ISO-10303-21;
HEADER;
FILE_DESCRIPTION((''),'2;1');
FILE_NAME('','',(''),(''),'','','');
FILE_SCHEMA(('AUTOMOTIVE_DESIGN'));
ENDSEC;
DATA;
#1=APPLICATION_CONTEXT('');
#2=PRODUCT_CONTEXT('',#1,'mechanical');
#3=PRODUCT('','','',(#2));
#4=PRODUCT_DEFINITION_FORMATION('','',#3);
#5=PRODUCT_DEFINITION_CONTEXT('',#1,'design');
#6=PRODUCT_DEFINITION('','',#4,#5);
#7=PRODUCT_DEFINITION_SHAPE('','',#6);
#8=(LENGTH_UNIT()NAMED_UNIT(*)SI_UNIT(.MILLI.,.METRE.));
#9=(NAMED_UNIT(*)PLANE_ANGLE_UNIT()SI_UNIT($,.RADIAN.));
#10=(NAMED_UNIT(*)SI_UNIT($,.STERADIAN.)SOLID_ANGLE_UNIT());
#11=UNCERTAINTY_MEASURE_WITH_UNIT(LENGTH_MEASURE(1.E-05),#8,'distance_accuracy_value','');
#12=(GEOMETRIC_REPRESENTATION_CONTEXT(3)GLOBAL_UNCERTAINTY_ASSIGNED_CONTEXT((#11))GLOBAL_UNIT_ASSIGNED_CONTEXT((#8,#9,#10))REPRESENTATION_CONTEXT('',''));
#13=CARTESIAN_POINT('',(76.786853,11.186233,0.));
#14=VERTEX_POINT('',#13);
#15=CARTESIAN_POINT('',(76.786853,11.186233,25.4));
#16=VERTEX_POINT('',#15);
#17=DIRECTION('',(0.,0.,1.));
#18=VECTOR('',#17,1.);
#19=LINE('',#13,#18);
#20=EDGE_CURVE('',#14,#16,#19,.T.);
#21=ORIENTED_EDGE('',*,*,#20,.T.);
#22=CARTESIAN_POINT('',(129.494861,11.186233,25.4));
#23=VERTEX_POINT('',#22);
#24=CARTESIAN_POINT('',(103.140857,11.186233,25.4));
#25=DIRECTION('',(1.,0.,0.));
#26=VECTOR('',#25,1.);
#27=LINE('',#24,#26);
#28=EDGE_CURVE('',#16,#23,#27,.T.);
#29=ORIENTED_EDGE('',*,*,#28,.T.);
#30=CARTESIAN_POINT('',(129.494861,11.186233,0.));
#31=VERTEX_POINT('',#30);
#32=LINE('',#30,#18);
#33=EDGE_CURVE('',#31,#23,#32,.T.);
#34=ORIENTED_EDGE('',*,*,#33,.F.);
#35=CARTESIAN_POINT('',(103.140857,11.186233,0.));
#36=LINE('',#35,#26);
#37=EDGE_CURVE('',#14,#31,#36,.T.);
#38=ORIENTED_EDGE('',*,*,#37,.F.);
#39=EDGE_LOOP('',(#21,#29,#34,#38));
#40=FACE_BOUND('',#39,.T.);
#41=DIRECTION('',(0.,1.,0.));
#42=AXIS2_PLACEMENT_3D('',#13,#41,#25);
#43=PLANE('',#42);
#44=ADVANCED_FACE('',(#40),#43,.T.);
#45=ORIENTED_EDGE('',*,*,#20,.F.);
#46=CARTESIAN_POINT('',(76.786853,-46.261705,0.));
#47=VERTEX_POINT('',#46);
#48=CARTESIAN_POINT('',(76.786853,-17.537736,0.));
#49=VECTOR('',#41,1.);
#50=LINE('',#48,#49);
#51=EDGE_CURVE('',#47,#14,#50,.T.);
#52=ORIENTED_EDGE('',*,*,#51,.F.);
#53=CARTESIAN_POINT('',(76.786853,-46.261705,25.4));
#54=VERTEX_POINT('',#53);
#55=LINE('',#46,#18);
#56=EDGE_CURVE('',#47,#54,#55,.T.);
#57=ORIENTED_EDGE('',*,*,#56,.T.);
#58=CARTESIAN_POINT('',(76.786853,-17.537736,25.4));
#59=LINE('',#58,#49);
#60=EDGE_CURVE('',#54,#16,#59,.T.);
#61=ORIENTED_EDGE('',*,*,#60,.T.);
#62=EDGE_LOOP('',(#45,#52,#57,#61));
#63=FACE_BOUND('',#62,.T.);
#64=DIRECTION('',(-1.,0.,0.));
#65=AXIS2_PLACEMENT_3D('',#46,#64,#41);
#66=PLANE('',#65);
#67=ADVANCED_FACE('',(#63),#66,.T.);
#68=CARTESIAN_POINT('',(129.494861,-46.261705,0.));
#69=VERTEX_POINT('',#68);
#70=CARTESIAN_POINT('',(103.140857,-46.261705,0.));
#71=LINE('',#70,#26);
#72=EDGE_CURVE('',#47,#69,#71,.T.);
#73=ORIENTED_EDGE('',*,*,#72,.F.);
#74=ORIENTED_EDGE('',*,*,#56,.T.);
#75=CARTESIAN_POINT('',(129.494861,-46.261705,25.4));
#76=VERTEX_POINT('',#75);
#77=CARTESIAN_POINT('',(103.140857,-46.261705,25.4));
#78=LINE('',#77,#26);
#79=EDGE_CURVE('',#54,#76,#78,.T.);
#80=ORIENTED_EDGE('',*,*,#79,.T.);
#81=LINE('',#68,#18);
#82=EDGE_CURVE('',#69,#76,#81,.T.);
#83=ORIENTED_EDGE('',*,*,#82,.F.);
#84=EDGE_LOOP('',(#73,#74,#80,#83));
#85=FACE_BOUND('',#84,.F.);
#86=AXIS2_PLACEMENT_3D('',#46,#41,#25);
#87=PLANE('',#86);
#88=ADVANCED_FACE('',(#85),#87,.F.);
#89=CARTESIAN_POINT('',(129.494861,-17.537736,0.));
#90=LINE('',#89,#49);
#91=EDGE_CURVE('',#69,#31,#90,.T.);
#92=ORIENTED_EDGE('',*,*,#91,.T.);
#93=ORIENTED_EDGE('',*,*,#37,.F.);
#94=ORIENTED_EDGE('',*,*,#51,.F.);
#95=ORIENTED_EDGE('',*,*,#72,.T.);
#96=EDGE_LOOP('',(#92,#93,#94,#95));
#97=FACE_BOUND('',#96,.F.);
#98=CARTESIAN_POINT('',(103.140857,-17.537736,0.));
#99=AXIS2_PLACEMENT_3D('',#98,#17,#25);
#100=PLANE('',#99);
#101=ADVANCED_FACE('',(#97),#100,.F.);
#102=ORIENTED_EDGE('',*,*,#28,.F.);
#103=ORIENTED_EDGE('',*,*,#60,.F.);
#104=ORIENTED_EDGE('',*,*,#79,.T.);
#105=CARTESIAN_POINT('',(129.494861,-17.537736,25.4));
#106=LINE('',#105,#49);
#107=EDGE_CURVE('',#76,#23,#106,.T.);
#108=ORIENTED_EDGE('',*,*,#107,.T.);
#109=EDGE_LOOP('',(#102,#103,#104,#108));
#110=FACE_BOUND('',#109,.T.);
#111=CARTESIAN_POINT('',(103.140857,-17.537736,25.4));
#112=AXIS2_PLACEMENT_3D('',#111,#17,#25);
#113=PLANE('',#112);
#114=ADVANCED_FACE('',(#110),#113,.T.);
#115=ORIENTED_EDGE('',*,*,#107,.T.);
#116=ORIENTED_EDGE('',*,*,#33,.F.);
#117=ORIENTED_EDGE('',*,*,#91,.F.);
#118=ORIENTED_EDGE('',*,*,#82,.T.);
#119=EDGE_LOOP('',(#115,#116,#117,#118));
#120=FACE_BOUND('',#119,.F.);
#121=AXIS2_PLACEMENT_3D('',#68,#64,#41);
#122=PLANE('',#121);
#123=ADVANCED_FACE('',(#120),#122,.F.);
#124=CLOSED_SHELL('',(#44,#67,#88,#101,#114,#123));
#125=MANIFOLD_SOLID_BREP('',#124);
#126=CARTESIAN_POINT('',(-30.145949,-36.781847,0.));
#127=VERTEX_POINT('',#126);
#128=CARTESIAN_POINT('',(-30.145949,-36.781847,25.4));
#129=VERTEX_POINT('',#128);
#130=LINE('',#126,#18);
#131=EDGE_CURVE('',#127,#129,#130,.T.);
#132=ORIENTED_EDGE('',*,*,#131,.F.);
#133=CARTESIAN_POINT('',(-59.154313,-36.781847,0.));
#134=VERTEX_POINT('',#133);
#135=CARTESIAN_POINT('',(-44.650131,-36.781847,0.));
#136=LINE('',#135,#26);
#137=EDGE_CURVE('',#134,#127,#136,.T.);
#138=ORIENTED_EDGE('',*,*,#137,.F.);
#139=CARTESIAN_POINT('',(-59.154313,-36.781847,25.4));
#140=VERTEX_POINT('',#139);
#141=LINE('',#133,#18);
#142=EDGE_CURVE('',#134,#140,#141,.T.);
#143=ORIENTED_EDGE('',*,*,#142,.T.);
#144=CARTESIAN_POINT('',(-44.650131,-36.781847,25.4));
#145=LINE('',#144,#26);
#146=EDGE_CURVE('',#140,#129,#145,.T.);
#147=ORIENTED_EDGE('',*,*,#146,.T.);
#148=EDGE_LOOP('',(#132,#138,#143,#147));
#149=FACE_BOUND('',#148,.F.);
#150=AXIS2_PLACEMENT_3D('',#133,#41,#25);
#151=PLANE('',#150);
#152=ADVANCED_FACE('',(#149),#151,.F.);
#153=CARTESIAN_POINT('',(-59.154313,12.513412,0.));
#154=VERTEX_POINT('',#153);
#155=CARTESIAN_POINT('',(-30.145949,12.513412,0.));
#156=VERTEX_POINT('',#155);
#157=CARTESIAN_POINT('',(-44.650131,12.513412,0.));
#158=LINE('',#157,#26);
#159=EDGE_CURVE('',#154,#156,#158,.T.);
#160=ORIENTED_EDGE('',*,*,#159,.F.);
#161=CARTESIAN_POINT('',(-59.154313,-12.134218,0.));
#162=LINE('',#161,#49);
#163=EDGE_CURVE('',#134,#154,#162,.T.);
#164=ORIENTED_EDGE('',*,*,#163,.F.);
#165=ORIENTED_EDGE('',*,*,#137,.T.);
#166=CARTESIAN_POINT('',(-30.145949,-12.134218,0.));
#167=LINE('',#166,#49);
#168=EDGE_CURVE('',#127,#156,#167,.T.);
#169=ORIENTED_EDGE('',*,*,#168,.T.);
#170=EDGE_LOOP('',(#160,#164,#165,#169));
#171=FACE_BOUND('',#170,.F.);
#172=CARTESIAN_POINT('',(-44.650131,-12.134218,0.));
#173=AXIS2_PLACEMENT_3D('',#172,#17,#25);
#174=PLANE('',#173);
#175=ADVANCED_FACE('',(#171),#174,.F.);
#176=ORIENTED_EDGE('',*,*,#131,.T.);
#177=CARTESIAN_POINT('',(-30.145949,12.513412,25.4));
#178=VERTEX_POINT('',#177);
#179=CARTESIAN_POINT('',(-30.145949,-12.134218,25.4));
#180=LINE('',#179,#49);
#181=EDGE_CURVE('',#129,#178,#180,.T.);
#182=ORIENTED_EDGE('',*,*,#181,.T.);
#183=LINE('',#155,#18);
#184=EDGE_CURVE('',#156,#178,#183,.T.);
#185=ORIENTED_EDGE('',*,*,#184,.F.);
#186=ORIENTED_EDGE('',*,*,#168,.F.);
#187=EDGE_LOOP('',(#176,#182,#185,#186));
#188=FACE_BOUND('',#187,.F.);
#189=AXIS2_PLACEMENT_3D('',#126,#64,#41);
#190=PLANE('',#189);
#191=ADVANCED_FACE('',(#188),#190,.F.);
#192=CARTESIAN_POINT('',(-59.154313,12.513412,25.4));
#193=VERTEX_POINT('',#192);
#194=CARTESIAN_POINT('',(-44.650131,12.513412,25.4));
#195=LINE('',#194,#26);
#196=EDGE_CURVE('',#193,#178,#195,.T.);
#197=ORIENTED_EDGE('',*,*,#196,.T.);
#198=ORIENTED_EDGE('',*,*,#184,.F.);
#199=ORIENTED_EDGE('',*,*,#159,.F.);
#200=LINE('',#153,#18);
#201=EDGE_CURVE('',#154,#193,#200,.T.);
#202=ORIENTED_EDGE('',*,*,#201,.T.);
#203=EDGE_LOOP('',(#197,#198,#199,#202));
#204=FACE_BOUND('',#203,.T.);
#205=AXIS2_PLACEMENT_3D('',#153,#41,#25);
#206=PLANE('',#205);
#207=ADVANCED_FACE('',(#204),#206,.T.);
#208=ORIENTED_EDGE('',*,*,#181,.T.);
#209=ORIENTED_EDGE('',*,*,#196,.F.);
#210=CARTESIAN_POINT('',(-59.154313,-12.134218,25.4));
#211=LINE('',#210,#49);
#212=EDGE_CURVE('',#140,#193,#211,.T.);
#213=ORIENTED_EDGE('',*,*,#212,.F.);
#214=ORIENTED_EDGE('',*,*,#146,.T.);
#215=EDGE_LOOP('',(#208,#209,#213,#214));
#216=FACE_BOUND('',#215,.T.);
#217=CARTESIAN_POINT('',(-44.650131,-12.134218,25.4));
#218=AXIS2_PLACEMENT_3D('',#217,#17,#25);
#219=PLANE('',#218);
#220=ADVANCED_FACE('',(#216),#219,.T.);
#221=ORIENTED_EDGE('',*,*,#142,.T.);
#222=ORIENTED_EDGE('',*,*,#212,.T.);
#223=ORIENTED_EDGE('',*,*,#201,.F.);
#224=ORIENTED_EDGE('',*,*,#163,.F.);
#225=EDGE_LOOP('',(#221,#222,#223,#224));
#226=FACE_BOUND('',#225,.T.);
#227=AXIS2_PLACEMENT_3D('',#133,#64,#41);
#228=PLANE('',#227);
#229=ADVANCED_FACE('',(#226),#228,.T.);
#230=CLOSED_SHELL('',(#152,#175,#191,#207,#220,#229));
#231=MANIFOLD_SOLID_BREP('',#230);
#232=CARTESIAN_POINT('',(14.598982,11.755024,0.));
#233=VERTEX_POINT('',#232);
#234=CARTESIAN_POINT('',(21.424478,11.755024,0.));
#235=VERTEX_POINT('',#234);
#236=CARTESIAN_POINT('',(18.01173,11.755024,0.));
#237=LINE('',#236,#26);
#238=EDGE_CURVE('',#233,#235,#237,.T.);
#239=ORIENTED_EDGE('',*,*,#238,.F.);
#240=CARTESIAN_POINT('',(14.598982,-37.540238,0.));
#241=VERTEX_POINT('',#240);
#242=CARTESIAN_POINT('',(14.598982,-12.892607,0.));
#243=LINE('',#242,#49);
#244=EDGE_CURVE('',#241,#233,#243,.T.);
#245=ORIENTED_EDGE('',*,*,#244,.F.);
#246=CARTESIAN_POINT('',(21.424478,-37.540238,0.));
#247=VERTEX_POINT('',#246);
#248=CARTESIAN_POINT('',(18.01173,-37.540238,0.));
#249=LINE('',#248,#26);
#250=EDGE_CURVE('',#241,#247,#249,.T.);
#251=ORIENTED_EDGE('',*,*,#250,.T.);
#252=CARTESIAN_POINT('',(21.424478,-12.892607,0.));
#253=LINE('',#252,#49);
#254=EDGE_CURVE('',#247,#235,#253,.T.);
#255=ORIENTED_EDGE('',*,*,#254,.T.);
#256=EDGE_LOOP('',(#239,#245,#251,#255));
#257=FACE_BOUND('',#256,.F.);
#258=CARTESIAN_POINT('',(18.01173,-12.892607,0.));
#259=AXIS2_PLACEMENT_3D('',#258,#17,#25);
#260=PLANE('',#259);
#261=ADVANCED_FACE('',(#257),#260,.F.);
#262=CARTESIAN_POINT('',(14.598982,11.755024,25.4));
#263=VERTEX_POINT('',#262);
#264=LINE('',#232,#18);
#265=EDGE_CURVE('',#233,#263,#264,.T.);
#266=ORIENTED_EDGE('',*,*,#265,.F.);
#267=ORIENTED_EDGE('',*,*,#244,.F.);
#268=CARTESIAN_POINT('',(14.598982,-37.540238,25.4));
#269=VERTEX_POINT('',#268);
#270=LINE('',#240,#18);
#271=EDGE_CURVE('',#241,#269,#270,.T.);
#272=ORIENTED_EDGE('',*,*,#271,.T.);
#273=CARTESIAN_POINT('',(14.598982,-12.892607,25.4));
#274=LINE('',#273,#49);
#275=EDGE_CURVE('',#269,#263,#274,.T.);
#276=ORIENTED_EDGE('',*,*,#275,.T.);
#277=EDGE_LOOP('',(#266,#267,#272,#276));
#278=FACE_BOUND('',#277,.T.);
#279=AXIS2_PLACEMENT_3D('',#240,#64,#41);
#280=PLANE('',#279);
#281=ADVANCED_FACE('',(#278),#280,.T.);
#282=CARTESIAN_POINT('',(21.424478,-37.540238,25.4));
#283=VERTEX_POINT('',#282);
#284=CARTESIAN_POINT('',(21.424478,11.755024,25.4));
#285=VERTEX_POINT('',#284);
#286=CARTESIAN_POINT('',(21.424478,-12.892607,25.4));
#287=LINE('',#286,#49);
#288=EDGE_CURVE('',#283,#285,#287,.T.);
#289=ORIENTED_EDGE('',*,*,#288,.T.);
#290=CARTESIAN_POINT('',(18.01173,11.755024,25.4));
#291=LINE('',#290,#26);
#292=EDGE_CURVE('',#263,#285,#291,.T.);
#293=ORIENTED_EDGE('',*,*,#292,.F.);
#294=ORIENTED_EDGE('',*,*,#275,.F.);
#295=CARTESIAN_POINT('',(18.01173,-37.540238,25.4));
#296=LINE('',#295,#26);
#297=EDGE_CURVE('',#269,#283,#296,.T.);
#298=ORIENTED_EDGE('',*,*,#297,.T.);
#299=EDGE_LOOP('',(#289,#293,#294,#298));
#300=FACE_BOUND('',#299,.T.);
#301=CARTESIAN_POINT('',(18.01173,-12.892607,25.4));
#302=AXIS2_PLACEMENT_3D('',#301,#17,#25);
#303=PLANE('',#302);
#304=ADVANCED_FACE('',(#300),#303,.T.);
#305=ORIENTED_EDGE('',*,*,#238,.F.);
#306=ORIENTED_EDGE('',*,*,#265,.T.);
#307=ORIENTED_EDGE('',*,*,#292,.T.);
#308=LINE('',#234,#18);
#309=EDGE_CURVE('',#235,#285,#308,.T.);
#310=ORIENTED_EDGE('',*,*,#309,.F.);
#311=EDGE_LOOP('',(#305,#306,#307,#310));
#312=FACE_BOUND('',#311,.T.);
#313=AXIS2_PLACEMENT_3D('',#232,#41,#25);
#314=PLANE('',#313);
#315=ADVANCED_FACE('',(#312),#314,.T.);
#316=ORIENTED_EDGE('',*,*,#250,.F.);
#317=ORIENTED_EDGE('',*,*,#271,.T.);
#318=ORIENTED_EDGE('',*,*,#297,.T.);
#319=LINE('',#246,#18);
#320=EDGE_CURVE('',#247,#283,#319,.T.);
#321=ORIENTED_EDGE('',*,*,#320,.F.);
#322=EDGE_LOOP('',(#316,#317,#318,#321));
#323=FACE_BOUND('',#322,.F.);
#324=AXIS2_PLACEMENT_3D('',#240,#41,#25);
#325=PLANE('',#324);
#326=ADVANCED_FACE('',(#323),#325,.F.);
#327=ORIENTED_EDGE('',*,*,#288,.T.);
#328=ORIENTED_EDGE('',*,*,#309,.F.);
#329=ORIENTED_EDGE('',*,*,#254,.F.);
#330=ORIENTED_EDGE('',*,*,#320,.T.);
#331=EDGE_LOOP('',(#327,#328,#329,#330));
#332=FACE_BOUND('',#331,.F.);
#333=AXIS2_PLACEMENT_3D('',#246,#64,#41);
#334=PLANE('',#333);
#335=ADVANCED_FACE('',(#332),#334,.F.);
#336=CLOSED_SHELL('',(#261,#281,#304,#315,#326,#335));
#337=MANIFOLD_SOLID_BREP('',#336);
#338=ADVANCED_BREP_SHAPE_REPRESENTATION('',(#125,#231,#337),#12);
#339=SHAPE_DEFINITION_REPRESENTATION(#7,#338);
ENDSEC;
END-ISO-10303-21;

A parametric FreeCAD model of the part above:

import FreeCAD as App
import Part
import Sketcher

V = App.Vector
Q = App.Units.Quantity


def add_polygon(sketch, points):
    """Adds a closed chain of lines whose ends are joined by coincident constraints."""
    first, n = sketch.GeometryCount, len(points)
    for a, b in zip(points, points[1:] + points[:1]):
        sketch.addGeometry(Part.LineSegment(App.Vector(*a, 0), App.Vector(*b, 0)), False)
    for i in range(n):
        sketch.addConstraint(Sketcher.Constraint("Coincident", first + i, 2, first + (i + 1) % n, 1))

doc = App.newDocument("Part")
params = doc.addObject("Spreadsheet::Sheet", "Params")
for row, (alias, value) in enumerate([
    ("pad1_length", "1 in"),
], start=1):
    params.set(f"A{row}", alias)
    params.set(f"B{row}", "=" + value)
    params.setAlias(f"B{row}", alias)

body = doc.addObject("PartDesign::Body", "Body")
body.AllowCompound = True

sketch1 = body.newObject("Sketcher::SketchObject", "Sketch")
sketch1.AttachmentSupport = (doc.getObject("XY_Plane"), [""])
sketch1.MapMode = "FlatFace"
add_polygon(sketch1, [(-59, 13), (-59, -37), (-30, -37), (-30, 13)])
add_polygon(sketch1, [(15, 12), (15, -38), (21, -38), (21, 12)])
add_polygon(sketch1, [(77, 11), (77, -46), (129, -46), (129, 11)])
sketch1.addConstraint([
    Sketcher.Constraint("Vertical", 0),
    Sketcher.Constraint("Horizontal", 1),
    Sketcher.Constraint("Vertical", 2),
    Sketcher.Constraint("Horizontal", 3),
    Sketcher.Constraint("Vertical", 4),
    Sketcher.Constraint("Horizontal", 5),
    Sketcher.Constraint("Vertical", 6),
    Sketcher.Constraint("Horizontal", 7),
    Sketcher.Constraint("Vertical", 8),
    Sketcher.Constraint("Horizontal", 9),
    Sketcher.Constraint("Vertical", 10),
    Sketcher.Constraint("Horizontal", 11),
    Sketcher.Constraint("DistanceY", 0, 2, 0, 1, Q("49.295259 mm")),
    Sketcher.Constraint("DistanceX", 1, 2, 8, 2, Q("106.932802 mm")),
    Sketcher.Constraint("DistanceX", 1, 1, 1, 2, Q("29.008364 mm")),
    Sketcher.Constraint("DistanceX", 5, 1, 5, 2, Q("6.825497 mm")),
    Sketcher.Constraint("DistanceX", 9, 1, 9, 2, Q("52.708008 mm")),
    Sketcher.Constraint("DistanceY", 4, 2, 4, 1, Q("49.295262 mm")),
    Sketcher.Constraint("DistanceY", 8, 2, 8, 1, Q("57.447938 mm")),
    Sketcher.Constraint("DistanceX", 1, 2, -1, 1, Q("30.145949 mm")),
    Sketcher.Constraint("DistanceY", -1, 1, 2, 2, Q("12.513412 mm")),
    Sketcher.Constraint("DistanceX", -1, 1, 4, 2, Q("14.598982 mm")),
    Sketcher.Constraint("DistanceY", 4, 2, -1, 1, Q("37.540238 mm")),
    Sketcher.Constraint("DistanceY", 8, 2, 6, 2, Q("58.016729 mm")),
])
pad1 = body.newObject("PartDesign::Pad", "Pad")
pad1.Profile = sketch1
pad1.setExpression("Length", "Params.pad1_length")

doc.recompute()
